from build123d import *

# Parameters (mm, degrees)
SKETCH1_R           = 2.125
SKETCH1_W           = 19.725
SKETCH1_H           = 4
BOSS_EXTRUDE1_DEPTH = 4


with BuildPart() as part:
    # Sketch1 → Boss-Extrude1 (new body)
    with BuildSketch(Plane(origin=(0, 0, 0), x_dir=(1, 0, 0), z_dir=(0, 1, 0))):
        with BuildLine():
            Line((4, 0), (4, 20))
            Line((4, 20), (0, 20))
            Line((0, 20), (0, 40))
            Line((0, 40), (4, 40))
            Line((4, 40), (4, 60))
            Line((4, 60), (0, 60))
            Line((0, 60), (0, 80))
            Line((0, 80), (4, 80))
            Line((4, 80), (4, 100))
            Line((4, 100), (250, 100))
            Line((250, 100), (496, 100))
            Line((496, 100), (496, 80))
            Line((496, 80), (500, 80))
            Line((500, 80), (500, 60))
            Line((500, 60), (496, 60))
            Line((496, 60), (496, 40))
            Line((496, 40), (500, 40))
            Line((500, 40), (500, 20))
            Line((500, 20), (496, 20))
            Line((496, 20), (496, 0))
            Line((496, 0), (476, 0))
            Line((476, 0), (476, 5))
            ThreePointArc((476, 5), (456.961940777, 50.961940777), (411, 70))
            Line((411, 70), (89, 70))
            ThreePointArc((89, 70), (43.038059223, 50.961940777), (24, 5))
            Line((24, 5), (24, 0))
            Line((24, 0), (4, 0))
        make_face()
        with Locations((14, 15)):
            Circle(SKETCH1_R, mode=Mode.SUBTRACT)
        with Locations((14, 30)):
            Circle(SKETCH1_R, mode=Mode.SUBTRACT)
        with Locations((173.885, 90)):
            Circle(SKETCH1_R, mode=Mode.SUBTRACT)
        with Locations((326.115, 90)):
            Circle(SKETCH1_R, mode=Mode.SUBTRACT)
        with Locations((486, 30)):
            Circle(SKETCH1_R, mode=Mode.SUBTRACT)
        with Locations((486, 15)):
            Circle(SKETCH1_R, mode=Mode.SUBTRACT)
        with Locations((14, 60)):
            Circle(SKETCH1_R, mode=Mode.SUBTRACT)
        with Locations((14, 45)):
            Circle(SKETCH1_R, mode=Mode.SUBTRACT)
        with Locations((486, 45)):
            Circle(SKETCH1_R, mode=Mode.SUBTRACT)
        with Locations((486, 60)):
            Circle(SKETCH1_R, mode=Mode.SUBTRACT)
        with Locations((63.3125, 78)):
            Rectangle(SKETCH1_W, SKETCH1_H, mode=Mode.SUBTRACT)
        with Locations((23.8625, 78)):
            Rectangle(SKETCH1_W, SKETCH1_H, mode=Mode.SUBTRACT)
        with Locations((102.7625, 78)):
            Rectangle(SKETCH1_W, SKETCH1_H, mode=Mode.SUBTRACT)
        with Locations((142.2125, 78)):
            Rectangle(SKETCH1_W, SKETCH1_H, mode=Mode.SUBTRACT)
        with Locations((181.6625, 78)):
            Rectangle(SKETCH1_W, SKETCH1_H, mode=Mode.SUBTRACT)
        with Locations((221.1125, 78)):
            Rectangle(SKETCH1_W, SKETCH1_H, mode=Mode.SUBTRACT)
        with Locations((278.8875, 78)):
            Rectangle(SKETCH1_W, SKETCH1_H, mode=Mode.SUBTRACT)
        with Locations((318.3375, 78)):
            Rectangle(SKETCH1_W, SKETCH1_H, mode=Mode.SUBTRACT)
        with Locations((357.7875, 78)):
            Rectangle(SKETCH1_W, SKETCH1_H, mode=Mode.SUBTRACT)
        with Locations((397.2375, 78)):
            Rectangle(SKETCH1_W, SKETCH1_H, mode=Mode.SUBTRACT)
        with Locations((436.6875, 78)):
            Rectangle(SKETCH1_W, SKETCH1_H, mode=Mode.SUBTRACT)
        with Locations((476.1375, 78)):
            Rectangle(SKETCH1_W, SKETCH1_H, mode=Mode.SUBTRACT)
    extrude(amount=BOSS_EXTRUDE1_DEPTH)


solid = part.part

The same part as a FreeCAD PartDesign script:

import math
import FreeCAD as App
import Part
import Sketcher

V = App.Vector
Q = App.Units.Quantity

doc = App.newDocument("Part")
body = doc.addObject("PartDesign::Body", "Body")

sketch1 = doc.addObject("Sketcher::SketchObject", "Sketch")
body.addObject(sketch1)
sketch1.AttachmentSupport = (doc.XZ_Plane, [""])
sketch1.MapMode = "FlatFace"
sketch1.addGeometry(Part.LineSegment(V(4, -20, 0), V(4, 0, 0)), False)
sketch1.addGeometry(Part.LineSegment(V(4, 0, 0), V(24, 0, 0)), False)
sketch1.addGeometry(Part.LineSegment(V(24, 0, 0), V(24, -5, 0)), False)
sketch1.addGeometry(Part.ArcOfCircle(Part.Circle(V(89, -5, 0), V(0, 0, 1), 65), math.radians(180), math.radians(270)), False)
sketch1.addGeometry(Part.LineSegment(V(89, -70, 0), V(411, -70, 0)), False)
sketch1.addGeometry(Part.ArcOfCircle(Part.Circle(V(411, -5, 0), V(0, 0, 1), 65), math.radians(-90), math.radians(0)), False)
sketch1.addGeometry(Part.LineSegment(V(476, -5, 0), V(476, 0, 0)), False)
sketch1.addGeometry(Part.LineSegment(V(476, 0, 0), V(496, 0, 0)), False)
sketch1.addGeometry(Part.LineSegment(V(496, 0, 0), V(496, -20, 0)), False)
sketch1.addGeometry(Part.LineSegment(V(496, -20, 0), V(500, -20, 0)), False)
sketch1.addGeometry(Part.LineSegment(V(500, -20, 0), V(500, -40, 0)), False)
sketch1.addGeometry(Part.LineSegment(V(500, -40, 0), V(496, -40, 0)), False)
sketch1.addGeometry(Part.LineSegment(V(496, -40, 0), V(496, -60, 0)), False)
sketch1.addGeometry(Part.LineSegment(V(496, -60, 0), V(500, -60, 0)), False)
sketch1.addGeometry(Part.LineSegment(V(500, -60, 0), V(500, -80, 0)), False)
sketch1.addGeometry(Part.LineSegment(V(500, -80, 0), V(496, -80, 0)), False)
sketch1.addGeometry(Part.LineSegment(V(496, -80, 0), V(496, -100, 0)), False)
sketch1.addGeometry(Part.LineSegment(V(496, -100, 0), V(4, -100, 0)), False)
sketch1.addGeometry(Part.LineSegment(V(4, -100, 0), V(4, -80, 0)), False)
sketch1.addGeometry(Part.LineSegment(V(4, -80, 0), V(0, -80, 0)), False)
sketch1.addGeometry(Part.LineSegment(V(0, -80, 0), V(0, -60, 0)), False)
sketch1.addGeometry(Part.LineSegment(V(0, -60, 0), V(4, -60, 0)), False)
sketch1.addGeometry(Part.LineSegment(V(4, -60, 0), V(4, -40, 0)), False)
sketch1.addGeometry(Part.LineSegment(V(4, -40, 0), V(0, -40, 0)), False)
sketch1.addGeometry(Part.LineSegment(V(0, -40, 0), V(0, -20, 0)), False)
sketch1.addGeometry(Part.LineSegment(V(0, -20, 0), V(4, -20, 0)), False)
sketch1.addGeometry(Part.Circle(V(486, -15, 0), V(0, 0, 1), 2.1), False)
sketch1.addGeometry(Part.Circle(V(486, -30, 0), V(0, 0, 1), 2.1), False)
sketch1.addGeometry(Part.Circle(V(486, -45, 0), V(0, 0, 1), 2.1), False)
sketch1.addGeometry(Part.Circle(V(14, -15, 0), V(0, 0, 1), 2.1), False)
sketch1.addGeometry(Part.Circle(V(14, -30, 0), V(0, 0, 1), 2.1), False)
sketch1.addGeometry(Part.Circle(V(14, -45, 0), V(0, 0, 1), 2.1), False)
sketch1.addGeometry(Part.Circle(V(486, -60, 0), V(0, 0, 1), 2.1), False)
sketch1.addGeometry(Part.LineSegment(V(466.3, -76, 0), V(466.3, -80, 0)), False)
sketch1.addGeometry(Part.LineSegment(V(466.3, -80, 0), V(486, -80, 0)), False)
sketch1.addGeometry(Part.LineSegment(V(486, -80, 0), V(486, -76, 0)), False)
sketch1.addGeometry(Part.LineSegment(V(486, -76, 0), V(466.3, -76, 0)), False)
sketch1.addGeometry(Part.LineSegment(V(426.8, -76, 0), V(426.8, -80, 0)), False)
sketch1.addGeometry(Part.LineSegment(V(426.8, -80, 0), V(446.6, -80, 0)), False)
sketch1.addGeometry(Part.LineSegment(V(446.6, -80, 0), V(446.6, -76, 0)), False)
sketch1.addGeometry(Part.LineSegment(V(446.6, -76, 0), V(426.8, -76, 0)), False)
sketch1.addGeometry(Part.LineSegment(V(387.4, -76, 0), V(387.4, -80, 0)), False)
sketch1.addGeometry(Part.LineSegment(V(387.4, -80, 0), V(407.1, -80, 0)), False)
sketch1.addGeometry(Part.LineSegment(V(407.1, -80, 0), V(407.1, -76, 0)), False)
sketch1.addGeometry(Part.LineSegment(V(407.1, -76, 0), V(387.4, -76, 0)), False)
sketch1.addGeometry(Part.LineSegment(V(347.9, -76, 0), V(347.9, -80, 0)), False)
sketch1.addGeometry(Part.LineSegment(V(347.9, -80, 0), V(367.6, -80, 0)), False)
sketch1.addGeometry(Part.LineSegment(V(367.6, -80, 0), V(367.6, -76, 0)), False)
sketch1.addGeometry(Part.LineSegment(V(367.6, -76, 0), V(347.9, -76, 0)), False)
sketch1.addGeometry(Part.LineSegment(V(308.5, -76, 0), V(308.5, -80, 0)), False)
sketch1.addGeometry(Part.LineSegment(V(308.5, -80, 0), V(328.2, -80, 0)), False)
sketch1.addGeometry(Part.LineSegment(V(328.2, -80, 0), V(328.2, -76, 0)), False)
sketch1.addGeometry(Part.LineSegment(V(328.2, -76, 0), V(308.5, -76, 0)), False)
sketch1.addGeometry(Part.LineSegment(V(269, -76, 0), V(269, -80, 0)), False)
sketch1.addGeometry(Part.LineSegment(V(269, -80, 0), V(288.8, -80, 0)), False)
sketch1.addGeometry(Part.LineSegment(V(288.8, -80, 0), V(288.8, -76, 0)), False)
sketch1.addGeometry(Part.LineSegment(V(288.8, -76, 0), V(269, -76, 0)), False)
sketch1.addGeometry(Part.Circle(V(326.1, -90, 0), V(0, 0, 1), 2.1), False)
sketch1.addGeometry(Part.Circle(V(14, -60, 0), V(0, 0, 1), 2.1), False)
sketch1.addGeometry(Part.LineSegment(V(211.2, -76, 0), V(211.2, -80, 0)), False)
sketch1.addGeometry(Part.LineSegment(V(211.2, -80, 0), V(231, -80, 0)), False)
sketch1.addGeometry(Part.LineSegment(V(231, -80, 0), V(231, -76, 0)), False)
sketch1.addGeometry(Part.LineSegment(V(231, -76, 0), V(211.2, -76, 0)), False)
sketch1.addGeometry(Part.LineSegment(V(171.8, -76, 0), V(171.8, -80, 0)), False)
sketch1.addGeometry(Part.LineSegment(V(171.8, -80, 0), V(191.5, -80, 0)), False)
sketch1.addGeometry(Part.LineSegment(V(191.5, -80, 0), V(191.5, -76, 0)), False)
sketch1.addGeometry(Part.LineSegment(V(191.5, -76, 0), V(171.8, -76, 0)), False)
sketch1.addGeometry(Part.LineSegment(V(132.3, -76, 0), V(132.3, -80, 0)), False)
sketch1.addGeometry(Part.LineSegment(V(132.3, -80, 0), V(152.1, -80, 0)), False)
sketch1.addGeometry(Part.LineSegment(V(152.1, -80, 0), V(152.1, -76, 0)), False)
sketch1.addGeometry(Part.LineSegment(V(152.1, -76, 0), V(132.3, -76, 0)), False)
sketch1.addGeometry(Part.Circle(V(173.9, -90, 0), V(0, 0, 1), 2.1), False)
sketch1.addGeometry(Part.LineSegment(V(92.9, -76, 0), V(92.9, -80, 0)), False)
sketch1.addGeometry(Part.LineSegment(V(92.9, -80, 0), V(112.6, -80, 0)), False)
sketch1.addGeometry(Part.LineSegment(V(112.6, -80, 0), V(112.6, -76, 0)), False)
sketch1.addGeometry(Part.LineSegment(V(112.6, -76, 0), V(92.9, -76, 0)), False)
sketch1.addGeometry(Part.LineSegment(V(53.5, -76, 0), V(53.5, -80, 0)), False)
sketch1.addGeometry(Part.LineSegment(V(53.5, -80, 0), V(73.2, -80, 0)), False)
sketch1.addGeometry(Part.LineSegment(V(73.2, -80, 0), V(73.2, -76, 0)), False)
sketch1.addGeometry(Part.LineSegment(V(73.2, -76, 0), V(53.5, -76, 0)), False)
sketch1.addGeometry(Part.LineSegment(V(14, -76, 0), V(14, -80, 0)), False)
sketch1.addGeometry(Part.LineSegment(V(14, -80, 0), V(33.7, -80, 0)), False)
sketch1.addGeometry(Part.LineSegment(V(33.7, -80, 0), V(33.7, -76, 0)), False)
sketch1.addGeometry(Part.LineSegment(V(33.7, -76, 0), V(14, -76, 0)), False)
sketch1.addConstraint(Sketcher.Constraint("Coincident", 0, 2, 1, 1))
sketch1.addConstraint(Sketcher.Constraint("Coincident", 1, 2, 2, 1))
sketch1.addConstraint(Sketcher.Constraint("Tangent", 2, 2, 3, 1))
sketch1.addConstraint(Sketcher.Constraint("Tangent", 3, 2, 4, 1))
sketch1.addConstraint(Sketcher.Constraint("Tangent", 4, 2, 5, 1))
sketch1.addConstraint(Sketcher.Constraint("Tangent", 5, 2, 6, 1))
sketch1.addConstraint(Sketcher.Constraint("Coincident", 6, 2, 7, 1))
sketch1.addConstraint(Sketcher.Constraint("Coincident", 7, 2, 8, 1))
sketch1.addConstraint(Sketcher.Constraint("Coincident", 8, 2, 9, 1))
sketch1.addConstraint(Sketcher.Constraint("Coincident", 9, 2, 10, 1))
sketch1.addConstraint(Sketcher.Constraint("Coincident", 10, 2, 11, 1))
sketch1.addConstraint(Sketcher.Constraint("Coincident", 11, 2, 12, 1))
sketch1.addConstraint(Sketcher.Constraint("Coincident", 12, 2, 13, 1))
sketch1.addConstraint(Sketcher.Constraint("Coincident", 13, 2, 14, 1))
sketch1.addConstraint(Sketcher.Constraint("Coincident", 14, 2, 15, 1))
sketch1.addConstraint(Sketcher.Constraint("Coincident", 15, 2, 16, 1))
sketch1.addConstraint(Sketcher.Constraint("Coincident", 16, 2, 17, 1))
sketch1.addConstraint(Sketcher.Constraint("Coincident", 17, 2, 18, 1))
sketch1.addConstraint(Sketcher.Constraint("Coincident", 18, 2, 19, 1))
sketch1.addConstraint(Sketcher.Constraint("Coincident", 19, 2, 20, 1))
sketch1.addConstraint(Sketcher.Constraint("Coincident", 20, 2, 21, 1))
sketch1.addConstraint(Sketcher.Constraint("Coincident", 21, 2, 22, 1))
sketch1.addConstraint(Sketcher.Constraint("Coincident", 22, 2, 23, 1))
sketch1.addConstraint(Sketcher.Constraint("Coincident", 23, 2, 24, 1))
sketch1.addConstraint(Sketcher.Constraint("Coincident", 24, 2, 25, 1))
sketch1.addConstraint(Sketcher.Constraint("Coincident", 25, 2, 0, 1))
sketch1.addConstraint(Sketcher.Constraint("Coincident", 33, 2, 34, 1))
sketch1.addConstraint(Sketcher.Constraint("Coincident", 34, 2, 35, 1))
sketch1.addConstraint(Sketcher.Constraint("Coincident", 35, 2, 36, 1))
sketch1.addConstraint(Sketcher.Constraint("Coincident", 36, 2, 33, 1))
sketch1.addConstraint(Sketcher.Constraint("Coincident", 37, 2, 38, 1))
sketch1.addConstraint(Sketcher.Constraint("Coincident", 38, 2, 39, 1))
sketch1.addConstraint(Sketcher.Constraint("Coincident", 39, 2, 40, 1))
sketch1.addConstraint(Sketcher.Constraint("Coincident", 40, 2, 37, 1))
sketch1.addConstraint(Sketcher.Constraint("Coincident", 41, 2, 42, 1))
sketch1.addConstraint(Sketcher.Constraint("Coincident", 42, 2, 43, 1))
sketch1.addConstraint(Sketcher.Constraint("Coincident", 43, 2, 44, 1))
sketch1.addConstraint(Sketcher.Constraint("Coincident", 44, 2, 41, 1))
sketch1.addConstraint(Sketcher.Constraint("Coincident", 45, 2, 46, 1))
sketch1.addConstraint(Sketcher.Constraint("Coincident", 46, 2, 47, 1))
sketch1.addConstraint(Sketcher.Constraint("Coincident", 47, 2, 48, 1))
sketch1.addConstraint(Sketcher.Constraint("Coincident", 48, 2, 45, 1))
sketch1.addConstraint(Sketcher.Constraint("Coincident", 49, 2, 50, 1))
sketch1.addConstraint(Sketcher.Constraint("Coincident", 50, 2, 51, 1))
sketch1.addConstraint(Sketcher.Constraint("Coincident", 51, 2, 52, 1))
sketch1.addConstraint(Sketcher.Constraint("Coincident", 52, 2, 49, 1))
sketch1.addConstraint(Sketcher.Constraint("Coincident", 53, 2, 54, 1))
sketch1.addConstraint(Sketcher.Constraint("Coincident", 54, 2, 55, 1))
sketch1.addConstraint(Sketcher.Constraint("Coincident", 55, 2, 56, 1))
sketch1.addConstraint(Sketcher.Constraint("Coincident", 56, 2, 53, 1))
sketch1.addConstraint(Sketcher.Constraint("Coincident", 59, 2, 60, 1))
sketch1.addConstraint(Sketcher.Constraint("Coincident", 60, 2, 61, 1))
sketch1.addConstraint(Sketcher.Constraint("Coincident", 61, 2, 62, 1))
sketch1.addConstraint(Sketcher.Constraint("Coincident", 62, 2, 59, 1))
sketch1.addConstraint(Sketcher.Constraint("Coincident", 63, 2, 64, 1))
sketch1.addConstraint(Sketcher.Constraint("Coincident", 64, 2, 65, 1))
sketch1.addConstraint(Sketcher.Constraint("Coincident", 65, 2, 66, 1))
sketch1.addConstraint(Sketcher.Constraint("Coincident", 66, 2, 63, 1))
sketch1.addConstraint(Sketcher.Constraint("Coincident", 67, 2, 68, 1))
sketch1.addConstraint(Sketcher.Constraint("Coincident", 68, 2, 69, 1))
sketch1.addConstraint(Sketcher.Constraint("Coincident", 69, 2, 70, 1))
sketch1.addConstraint(Sketcher.Constraint("Coincident", 70, 2, 67, 1))
sketch1.addConstraint(Sketcher.Constraint("Coincident", 72, 2, 73, 1))
sketch1.addConstraint(Sketcher.Constraint("Coincident", 73, 2, 74, 1))
sketch1.addConstraint(Sketcher.Constraint("Coincident", 74, 2, 75, 1))
sketch1.addConstraint(Sketcher.Constraint("Coincident", 75, 2, 72, 1))
sketch1.addConstraint(Sketcher.Constraint("Coincident", 76, 2, 77, 1))
sketch1.addConstraint(Sketcher.Constraint("Coincident", 77, 2, 78, 1))
sketch1.addConstraint(Sketcher.Constraint("Coincident", 78, 2, 79, 1))
sketch1.addConstraint(Sketcher.Constraint("Coincident", 79, 2, 76, 1))
sketch1.addConstraint(Sketcher.Constraint("Coincident", 80, 2, 81, 1))
sketch1.addConstraint(Sketcher.Constraint("Coincident", 81, 2, 82, 1))
sketch1.addConstraint(Sketcher.Constraint("Coincident", 82, 2, 83, 1))
sketch1.addConstraint(Sketcher.Constraint("Coincident", 83, 2, 80, 1))
sketch1.addConstraint(Sketcher.Constraint("Vertical", 0))
sketch1.addConstraint(Sketcher.Constraint("Horizontal", 1))
sketch1.addConstraint(Sketcher.Constraint("Vertical", 2))
sketch1.addConstraint(Sketcher.Constraint("Horizontal", 4))
sketch1.addConstraint(Sketcher.Constraint("Vertical", 6))
sketch1.addConstraint(Sketcher.Constraint("Horizontal", 7))
sketch1.addConstraint(Sketcher.Constraint("Vertical", 8))
sketch1.addConstraint(Sketcher.Constraint("Horizontal", 9))
sketch1.addConstraint(Sketcher.Constraint("Vertical", 10))
sketch1.addConstraint(Sketcher.Constraint("Horizontal", 11))
sketch1.addConstraint(Sketcher.Constraint("Vertical", 12))
sketch1.addConstraint(Sketcher.Constraint("Horizontal", 13))
sketch1.addConstraint(Sketcher.Constraint("Vertical", 14))
sketch1.addConstraint(Sketcher.Constraint("Horizontal", 15))
sketch1.addConstraint(Sketcher.Constraint("Vertical", 16))
sketch1.addConstraint(Sketcher.Constraint("Horizontal", 17))
sketch1.addConstraint(Sketcher.Constraint("Vertical", 18))
sketch1.addConstraint(Sketcher.Constraint("Horizontal", 19))
sketch1.addConstraint(Sketcher.Constraint("Vertical", 20))
sketch1.addConstraint(Sketcher.Constraint("Horizontal", 21))
sketch1.addConstraint(Sketcher.Constraint("Vertical", 22))
sketch1.addConstraint(Sketcher.Constraint("Horizontal", 23))
sketch1.addConstraint(Sketcher.Constraint("Vertical", 24))
sketch1.addConstraint(Sketcher.Constraint("Horizontal", 25))
sketch1.addConstraint(Sketcher.Constraint("Vertical", 33))
sketch1.addConstraint(Sketcher.Constraint("Horizontal", 34))
sketch1.addConstraint(Sketcher.Constraint("Vertical", 35))
sketch1.addConstraint(Sketcher.Constraint("Horizontal", 36))
sketch1.addConstraint(Sketcher.Constraint("Vertical", 37))
sketch1.addConstraint(Sketcher.Constraint("Horizontal", 38))
sketch1.addConstraint(Sketcher.Constraint("Vertical", 39))
sketch1.addConstraint(Sketcher.Constraint("Horizontal", 40))
sketch1.addConstraint(Sketcher.Constraint("Vertical", 41))
sketch1.addConstraint(Sketcher.Constraint("Horizontal", 42))
sketch1.addConstraint(Sketcher.Constraint("Vertical", 43))
sketch1.addConstraint(Sketcher.Constraint("Horizontal", 44))
sketch1.addConstraint(Sketcher.Constraint("Vertical", 45))
sketch1.addConstraint(Sketcher.Constraint("Horizontal", 46))
sketch1.addConstraint(Sketcher.Constraint("Vertical", 47))
sketch1.addConstraint(Sketcher.Constraint("Horizontal", 48))
sketch1.addConstraint(Sketcher.Constraint("Vertical", 49))
sketch1.addConstraint(Sketcher.Constraint("Horizontal", 50))
sketch1.addConstraint(Sketcher.Constraint("Vertical", 51))
sketch1.addConstraint(Sketcher.Constraint("Horizontal", 52))
sketch1.addConstraint(Sketcher.Constraint("Vertical", 53))
sketch1.addConstraint(Sketcher.Constraint("Horizontal", 54))
sketch1.addConstraint(Sketcher.Constraint("Vertical", 55))
sketch1.addConstraint(Sketcher.Constraint("Horizontal", 56))
sketch1.addConstraint(Sketcher.Constraint("Vertical", 59))
sketch1.addConstraint(Sketcher.Constraint("Horizontal", 60))
sketch1.addConstraint(Sketcher.Constraint("Vertical", 61))
sketch1.addConstraint(Sketcher.Constraint("Horizontal", 62))
sketch1.addConstraint(Sketcher.Constraint("Vertical", 63))
sketch1.addConstraint(Sketcher.Constraint("Horizontal", 64))
sketch1.addConstraint(Sketcher.Constraint("Vertical", 65))
sketch1.addConstraint(Sketcher.Constraint("Horizontal", 66))
sketch1.addConstraint(Sketcher.Constraint("Vertical", 67))
sketch1.addConstraint(Sketcher.Constraint("Horizontal", 68))
sketch1.addConstraint(Sketcher.Constraint("Vertical", 69))
sketch1.addConstraint(Sketcher.Constraint("Horizontal", 70))
sketch1.addConstraint(Sketcher.Constraint("Vertical", 72))
sketch1.addConstraint(Sketcher.Constraint("Horizontal", 73))
sketch1.addConstraint(Sketcher.Constraint("Vertical", 74))
sketch1.addConstraint(Sketcher.Constraint("Horizontal", 75))
sketch1.addConstraint(Sketcher.Constraint("Vertical", 76))
sketch1.addConstraint(Sketcher.Constraint("Horizontal", 77))
sketch1.addConstraint(Sketcher.Constraint("Vertical", 78))
sketch1.addConstraint(Sketcher.Constraint("Horizontal", 79))
sketch1.addConstraint(Sketcher.Constraint("Vertical", 80))
sketch1.addConstraint(Sketcher.Constraint("Horizontal", 81))
sketch1.addConstraint(Sketcher.Constraint("Vertical", 82))
sketch1.addConstraint(Sketcher.Constraint("Horizontal", 83))
sketch1.addConstraint(Sketcher.Constraint("Equal", 3, 5))
sketch1.addConstraint(Sketcher.Constraint("Equal", 26, 27))
sketch1.addConstraint(Sketcher.Constraint("Equal", 27, 28))
sketch1.addConstraint(Sketcher.Constraint("Equal", 28, 29))
sketch1.addConstraint(Sketcher.Constraint("Equal", 29, 30))
sketch1.addConstraint(Sketcher.Constraint("Equal", 30, 31))
sketch1.addConstraint(Sketcher.Constraint("Equal", 31, 32))
sketch1.addConstraint(Sketcher.Constraint("Equal", 32, 57))
sketch1.addConstraint(Sketcher.Constraint("Equal", 57, 58))
sketch1.addConstraint(Sketcher.Constraint("Equal", 58, 71))
sketch1.addConstraint(Sketcher.Constraint("PointOnObject", 0, 2, -1))
sketch1.addConstraint(Sketcher.Constraint("PointOnObject", 6, 2, -1))
sketch1.addConstraint(Sketcher.Constraint("PointOnObject", 19, 2, -2))
sketch1.addConstraint(Sketcher.Constraint("PointOnObject", 23, 2, -2))
sketch1.addConstraint(Sketcher.Constraint("Horizontal", 26, 3, 29, 3))
sketch1.addConstraint(Sketcher.Constraint("Horizontal", 27, 3, 30, 3))
sketch1.addConstraint(Sketcher.Constraint("Horizontal", 28, 3, 31, 3))
sketch1.addConstraint(Sketcher.Constraint("Horizontal", 32, 3, 58, 3))
sketch1.addConstraint(Sketcher.Constraint("Horizontal", 57, 3, 71, 3))
sketch1.addConstraint(Sketcher.Constraint("Horizontal", 58, 3, 12, 2))
sketch1.addConstraint(Sketcher.Constraint("Horizontal", 15, 2, 18, 2))
sketch1.addConstraint(Sketcher.Constraint("Horizontal", 13, 2, 20, 2))
sketch1.addConstraint(Sketcher.Constraint("Horizontal", 11, 2, 22, 2))
sketch1.addConstraint(Sketcher.Constraint("Horizontal", 9, 2, 24, 2))
sketch1.addConstraint(Sketcher.Constraint("Horizontal", 19, 2, 33, 2))
sketch1.addConstraint(Sketcher.Constraint("Horizontal", 34, 2, 37, 2))
sketch1.addConstraint(Sketcher.Constraint("Horizontal", 36, 2, 39, 2))
sketch1.addConstraint(Sketcher.Constraint("Horizontal", 38, 2, 41, 2))
sketch1.addConstraint(Sketcher.Constraint("Horizontal", 40, 2, 43, 2))
sketch1.addConstraint(Sketcher.Constraint("Horizontal", 42, 2, 45, 2))
sketch1.addConstraint(Sketcher.Constraint("Horizontal", 44, 2, 47, 2))
sketch1.addConstraint(Sketcher.Constraint("Horizontal", 46, 2, 49, 2))
sketch1.addConstraint(Sketcher.Constraint("Horizontal", 48, 2, 51, 2))
sketch1.addConstraint(Sketcher.Constraint("Horizontal", 50, 2, 53, 2))
sketch1.addConstraint(Sketcher.Constraint("Horizontal", 52, 2, 55, 2))
sketch1.addConstraint(Sketcher.Constraint("Horizontal", 54, 2, 59, 2))
sketch1.addConstraint(Sketcher.Constraint("Horizontal", 56, 2, 61, 2))
sketch1.addConstraint(Sketcher.Constraint("Horizontal", 60, 2, 63, 2))
sketch1.addConstraint(Sketcher.Constraint("Horizontal", 62, 2, 65, 2))
sketch1.addConstraint(Sketcher.Constraint("Horizontal", 64, 2, 67, 2))
sketch1.addConstraint(Sketcher.Constraint("Horizontal", 66, 2, 69, 2))
sketch1.addConstraint(Sketcher.Constraint("Horizontal", 68, 2, 72, 2))
sketch1.addConstraint(Sketcher.Constraint("Horizontal", 70, 2, 74, 2))
sketch1.addConstraint(Sketcher.Constraint("Horizontal", 73, 2, 76, 2))
sketch1.addConstraint(Sketcher.Constraint("Horizontal", 75, 2, 78, 2))
sketch1.addConstraint(Sketcher.Constraint("Horizontal", 77, 2, 80, 2))
sketch1.addConstraint(Sketcher.Constraint("Horizontal", 79, 2, 82, 2))
sketch1.addConstraint(Sketcher.Constraint("Vertical", 26, 3, 27, 3))
sketch1.addConstraint(Sketcher.Constraint("Vertical", 27, 3, 28, 3))
sketch1.addConstraint(Sketcher.Constraint("Vertical", 29, 3, 30, 3))
sketch1.addConstraint(Sketcher.Constraint("Vertical", 30, 3, 31, 3))
sketch1.addConstraint(Sketcher.Constraint("Vertical", 28, 3, 32, 3))
sketch1.addConstraint(Sketcher.Constraint("Vertical", 31, 3, 58, 3))
sketch1.addConstraint(Sketcher.Constraint("Vertical", 8, 2, 11, 2))
sketch1.addConstraint(Sketcher.Constraint("Vertical", 10, 2, 13, 2))
sketch1.addConstraint(Sketcher.Constraint("Vertical", 12, 2, 15, 2))
sketch1.addConstraint(Sketcher.Constraint("Vertical", 0, 2, 17, 2))
sketch1.addConstraint(Sketcher.Constraint("Vertical", 18, 2, 21, 2))
sketch1.addConstraint(Sketcher.Constraint("Vertical", 32, 3, 34, 2))
sketch1.addConstraint(Sketcher.Constraint("Vertical", 58, 3, 80, 2))
sketch1.addConstraint(Sketcher.Constraint("Equal", 1, 7))
sketch1.addConstraint(Sketcher.Constraint("Equal", 15, 19))
sketch1.addConstraint(Sketcher.Constraint("Equal", 36, 38))
sketch1.addConstraint(Sketcher.Constraint("Equal", 40, 42))
sketch1.addConstraint(Sketcher.Constraint("Equal", 44, 46))
sketch1.addConstraint(Sketcher.Constraint("Equal", 48, 50))
sketch1.addConstraint(Sketcher.Constraint("Equal", 52, 54))
sketch1.addConstraint(Sketcher.Constraint("Equal", 56, 60))
sketch1.addConstraint(Sketcher.Constraint("Equal", 62, 64))
sketch1.addConstraint(Sketcher.Constraint("Equal", 66, 68))
sketch1.addConstraint(Sketcher.Constraint("Equal", 70, 73))
sketch1.addConstraint(Sketcher.Constraint("Equal", 75, 77))
sketch1.addConstraint(Sketcher.Constraint("Equal", 79, 81))
sketch1.addConstraint(Sketcher.Constraint("Equal", 7, 0))
sketch1.addConstraint(Sketcher.Constraint("Equal", 8, 10))
sketch1.addConstraint(Sketcher.Constraint("Equal", 10, 12))
sketch1.addConstraint(Sketcher.Constraint("Equal", 12, 14))
sketch1.addConstraint(Sketcher.Constraint("Equal", 14, 16))
sketch1.addConstraint(Sketcher.Constraint("Equal", 25, 33))
sketch1.addConstraint(Sketcher.Constraint("Radius", 3, Q("65 mm")))
sketch1.addConstraint(Sketcher.Constraint("Diameter", 26, Q("4.25 mm")))
sketch1.addConstraint(Sketcher.Constraint("DistanceX", 1, 1, 1, 2, Q("20 mm")))
sketch1.addConstraint(Sketcher.Constraint("DistanceX", 4, 1, 4, 2, Q("322 mm")))
sketch1.addConstraint(Sketcher.Constraint("DistanceX", 9, 1, 9, 2, Q("4 mm")))
sketch1.addConstraint(Sketcher.Constraint("DistanceY", 2, 2, 2, 1, Q("5 mm")))
sketch1.addConstraint(Sketcher.Constraint("DistanceX", -1, 1, 26, 3, Q("486 mm")))
sketch1.addConstraint(Sketcher.Constraint("DistanceY", 26, 3, -1, 1, Q("15 mm")))
sketch1.addConstraint(Sketcher.Constraint("DistanceY", 27, 3, -1, 1, Q("30 mm")))
sketch1.addConstraint(Sketcher.Constraint("DistanceY", 28, 3, -1, 1, Q("45 mm")))
sketch1.addConstraint(Sketcher.Constraint("DistanceX", -1, 1, 29, 3, Q("14 mm")))
sketch1.addConstraint(Sketcher.Constraint("DistanceY", 57, 3, -1, 1, Q("90 mm")))
sketch1.addConstraint(Sketcher.Constraint("DistanceX", -1, 1, 42, 2, Q("407.1 mm")))
sketch1.addConstraint(Sketcher.Constraint("DistanceX", -1, 1, 50, 2, Q("328.2 mm")))
sketch1.addConstraint(Sketcher.Constraint("DistanceX", -1, 1, 63, 2, Q("171.8 mm")))
sketch1.addConstraint(Sketcher.Constraint("DistanceX", -1, 1, 72, 2, Q("92.9 mm")))
sketch1.addConstraint(Sketcher.Constraint("DistanceX", 34, 1, 34, 2, Q("19.725 mm")))
sketch1.addConstraint(Sketcher.Constraint("DistanceX", -1, 1, 38, 2, Q("446.55 mm")))
sketch1.addConstraint(Sketcher.Constraint("DistanceX", -1, 1, 46, 2, Q("367.65 mm")))
sketch1.addConstraint(Sketcher.Constraint("DistanceX", -1, 1, 54, 2, Q("288.75 mm")))
sketch1.addConstraint(Sketcher.Constraint("DistanceX", -1, 1, 59, 2, Q("211.25 mm")))
sketch1.addConstraint(Sketcher.Constraint("DistanceX", -1, 1, 67, 2, Q("132.35 mm")))
sketch1.addConstraint(Sketcher.Constraint("DistanceX", -1, 1, 76, 2, Q("53.45 mm")))
sketch1.addConstraint(Sketcher.Constraint("DistanceX", -1, 1, 57, 3, Q("326.115 mm")))
sketch1.addConstraint(Sketcher.Constraint("DistanceX", -1, 1, 71, 3, Q("173.885 mm")))
pad1 = doc.addObject("PartDesign::Pad", "Pad")
body.addObject(pad1)
pad1.Profile = sketch1
pad1.Length = 4
pad1.Reversed = True

doc.recompute()
